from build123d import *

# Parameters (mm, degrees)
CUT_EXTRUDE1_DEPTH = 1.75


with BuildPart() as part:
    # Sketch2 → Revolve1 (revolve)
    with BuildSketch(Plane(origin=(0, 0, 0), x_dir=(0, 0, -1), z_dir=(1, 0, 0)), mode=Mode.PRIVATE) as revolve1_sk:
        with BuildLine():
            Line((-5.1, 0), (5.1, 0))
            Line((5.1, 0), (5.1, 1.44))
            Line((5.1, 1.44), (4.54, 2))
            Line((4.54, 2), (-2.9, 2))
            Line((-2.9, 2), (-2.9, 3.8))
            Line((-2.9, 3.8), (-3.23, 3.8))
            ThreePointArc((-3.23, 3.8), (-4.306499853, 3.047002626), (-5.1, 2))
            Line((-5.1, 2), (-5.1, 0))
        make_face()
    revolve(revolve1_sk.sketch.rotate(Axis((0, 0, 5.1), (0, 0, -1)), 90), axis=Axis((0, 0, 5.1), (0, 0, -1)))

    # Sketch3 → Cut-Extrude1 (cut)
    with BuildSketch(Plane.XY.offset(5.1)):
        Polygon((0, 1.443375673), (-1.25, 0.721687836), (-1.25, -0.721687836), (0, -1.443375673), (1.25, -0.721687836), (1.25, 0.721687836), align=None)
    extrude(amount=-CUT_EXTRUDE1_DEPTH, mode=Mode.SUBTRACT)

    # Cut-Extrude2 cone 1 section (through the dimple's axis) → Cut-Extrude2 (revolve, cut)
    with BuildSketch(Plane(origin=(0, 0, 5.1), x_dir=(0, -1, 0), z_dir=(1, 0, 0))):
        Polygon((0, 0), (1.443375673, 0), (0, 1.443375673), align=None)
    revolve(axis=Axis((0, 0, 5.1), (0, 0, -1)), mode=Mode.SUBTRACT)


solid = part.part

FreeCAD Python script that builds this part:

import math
import FreeCAD as App
import Part
import Sketcher
from FreeCAD import Vector
Q = App.Units.Quantity


def add_polygon(sketch, points):
    """Adds a closed chain of lines whose ends are joined by coincident constraints."""
    first, n = sketch.GeometryCount, len(points)
    for a, b in zip(points, points[1:] + points[:1]):
        sketch.addGeometry(Part.LineSegment(App.Vector(*a, 0), App.Vector(*b, 0)), False)
    for i in range(n):
        sketch.addConstraint(Sketcher.Constraint("Coincident", first + i, 2, first + (i + 1) % n, 1))

doc = App.newDocument("Part")
body = doc.addObject("PartDesign::Body", "Body")

# Sketch on YZ plane
sketch1 = body.newObject("Sketcher::SketchObject", "Sketch")
sketch1.AttachmentSupport = (doc.getObject("YZ_Plane"), [""])
sketch1.MapMode = "FlatFace"
sketch1.addGeometry(Part.LineSegment(Vector(0, 5.1, 0), Vector(0, -5.1, 0)), False)
sketch1.addGeometry(Part.LineSegment(Vector(0, -5.1, 0), Vector(1.44, -5.1, 0)), False)
sketch1.addGeometry(Part.LineSegment(Vector(1.44, -5.1, 0), Vector(2, -4.54, 0)), False)
sketch1.addGeometry(Part.LineSegment(Vector(2, -4.54, 0), Vector(2, 2.9, 0)), False)
sketch1.addGeometry(Part.LineSegment(Vector(2, 2.9, 0), Vector(3.8, 2.9, 0)), False)
sketch1.addGeometry(Part.LineSegment(Vector(3.8, 2.9, 0), Vector(3.8, 3.23, 0)), False)
sketch1.addGeometry(Part.ArcOfCircle(Part.Circle(Vector(0, 1.37, 0), Vector(0, 0, 1), 4.23), math.radians(26), math.radians(62)), False)
sketch1.addGeometry(Part.LineSegment(Vector(2, 5.1, 0), Vector(0, 5.1, 0)), False)
sketch1.addConstraint(Sketcher.Constraint("Coincident", 0, 2, 1, 1))
sketch1.addConstraint(Sketcher.Constraint("Coincident", 1, 2, 2, 1))
sketch1.addConstraint(Sketcher.Constraint("Coincident", 2, 2, 3, 1))
sketch1.addConstraint(Sketcher.Constraint("Coincident", 3, 2, 4, 1))
sketch1.addConstraint(Sketcher.Constraint("Coincident", 4, 2, 5, 1))
sketch1.addConstraint(Sketcher.Constraint("Coincident", 5, 2, 6, 1))
sketch1.addConstraint(Sketcher.Constraint("Coincident", 6, 2, 7, 1))
sketch1.addConstraint(Sketcher.Constraint("Coincident", 7, 2, 0, 1))
sketch1.addConstraint(Sketcher.Constraint("Vertical", 0))
sketch1.addConstraint(Sketcher.Constraint("Horizontal", 1))
sketch1.addConstraint(Sketcher.Constraint("Vertical", 3))
sketch1.addConstraint(Sketcher.Constraint("Horizontal", 4))
sketch1.addConstraint(Sketcher.Constraint("Vertical", 5))
sketch1.addConstraint(Sketcher.Constraint("Horizontal", 7))
sketch1.addConstraint(Sketcher.Constraint("Symmetric", 0, 2, 7, 2, -1, 1))
sketch1.addConstraint(Sketcher.Constraint("PointOnObject", 6, 3, -2))
sketch1.addConstraint(Sketcher.Constraint("Vertical", 3, 2, 6, 2))
sketch1.addConstraint(Sketcher.Constraint("DistanceX", 7, 2, 7, 1, Q("2 mm")))
sketch1.addConstraint(Sketcher.Constraint("Angle", 2, Q("45 deg")))
sketch1.addConstraint(Sketcher.Constraint("DistanceX", 4, 1, 4, 2, Q("1.8 mm")))
sketch1.addConstraint(Sketcher.Constraint("DistanceY", 0, 2, 0, 1, Q("10.2 mm")))
sketch1.addConstraint(Sketcher.Constraint("DistanceY", 1, 2, 3, 2, Q("8 mm")))
sketch1.addConstraint(Sketcher.Constraint("DistanceX", 1, 1, 1, 2, Q("1.44 mm")))
sketch1.addConstraint(Sketcher.Constraint("DistanceY", 5, 1, 5, 2, Q("0.33 mm")))
revolution = body.newObject("PartDesign::Revolution", "Revolution")
revolution.Profile = sketch1
revolution.ReferenceAxis = (sketch1, ["V_Axis"])
revolution.Angle = 360

# Sketch on XY plane
sketch2 = body.newObject("Sketcher::SketchObject", "Sketch001")
sketch2.AttachmentSupport = (doc.getObject("XY_Plane"), [""])
sketch2.MapMode = "FlatFace"
sketch2.AttachmentOffset = App.Placement(Vector(0, 0, 5.1), App.Rotation())
add_polygon(sketch2, [(0, 1.4), (-1.2, 0.7), (-1.2, -0.7), (0, -1.4), (1.2, -0.7), (1.2, 0.7)])  # lines 0-5
sketch2.addConstraint(Sketcher.Constraint("Vertical", 1))
sketch2.addConstraint(Sketcher.Constraint("Vertical", 4))
sketch2.addConstraint(Sketcher.Constraint("Symmetric", 0, 2, 3, 2, -1, 1))
sketch2.addConstraint(Sketcher.Constraint("Symmetric", 2, 2, 5, 2, -1, 1))
sketch2.addConstraint(Sketcher.Constraint("PointOnObject", 2, 2, -2))
sketch2.addConstraint(Sketcher.Constraint("Parallel", 2, 5))
sketch2.addConstraint(Sketcher.Constraint("Horizontal", 1, 2, 3, 2))
sketch2.addConstraint(Sketcher.Constraint("Angle", 0, Q("-150 deg")))
sketch2.addConstraint(Sketcher.Constraint("DistanceX", 1, 2, 3, 2, Q("2.5 mm")))
sketch2.addConstraint(Sketcher.Constraint("DistanceY", 1, 2, 1, 1, Q("1.443376 mm")))
pocket1 = body.newObject("PartDesign::Pocket", "Pocket")
pocket1.Profile = sketch2
pocket1.Length = 1.75

# Sketch on YZ plane
sketch3 = body.newObject("Sketcher::SketchObject", "Sketch002")
sketch3.AttachmentSupport = (doc.getObject("YZ_Plane"), [""])
sketch3.MapMode = "FlatFace"
add_polygon(sketch3, [(0, 5.1), (-1.4, 5.1), (0, 3.7)])  # lines 0-2
sketch3.addConstraint(Sketcher.Constraint("Horizontal", 0))
sketch3.addConstraint(Sketcher.Constraint("Vertical", 2))
sketch3.addConstraint(Sketcher.Constraint("PointOnObject", 1, 2, -2))
sketch3.addConstraint(Sketcher.Constraint("Equal", 0, 2))
sketch3.addConstraint(Sketcher.Constraint("DistanceY", -1, 1, 0, 2, Q("5.1 mm")))
sketch3.addConstraint(Sketcher.Constraint("Distance", 1, Q("2.041241 mm")))
groove = body.newObject("PartDesign::Groove", "Groove")
groove.Profile = sketch3
groove.ReferenceAxis = (sketch3, ["V_Axis"])
groove.Angle = 360

doc.recompute()
